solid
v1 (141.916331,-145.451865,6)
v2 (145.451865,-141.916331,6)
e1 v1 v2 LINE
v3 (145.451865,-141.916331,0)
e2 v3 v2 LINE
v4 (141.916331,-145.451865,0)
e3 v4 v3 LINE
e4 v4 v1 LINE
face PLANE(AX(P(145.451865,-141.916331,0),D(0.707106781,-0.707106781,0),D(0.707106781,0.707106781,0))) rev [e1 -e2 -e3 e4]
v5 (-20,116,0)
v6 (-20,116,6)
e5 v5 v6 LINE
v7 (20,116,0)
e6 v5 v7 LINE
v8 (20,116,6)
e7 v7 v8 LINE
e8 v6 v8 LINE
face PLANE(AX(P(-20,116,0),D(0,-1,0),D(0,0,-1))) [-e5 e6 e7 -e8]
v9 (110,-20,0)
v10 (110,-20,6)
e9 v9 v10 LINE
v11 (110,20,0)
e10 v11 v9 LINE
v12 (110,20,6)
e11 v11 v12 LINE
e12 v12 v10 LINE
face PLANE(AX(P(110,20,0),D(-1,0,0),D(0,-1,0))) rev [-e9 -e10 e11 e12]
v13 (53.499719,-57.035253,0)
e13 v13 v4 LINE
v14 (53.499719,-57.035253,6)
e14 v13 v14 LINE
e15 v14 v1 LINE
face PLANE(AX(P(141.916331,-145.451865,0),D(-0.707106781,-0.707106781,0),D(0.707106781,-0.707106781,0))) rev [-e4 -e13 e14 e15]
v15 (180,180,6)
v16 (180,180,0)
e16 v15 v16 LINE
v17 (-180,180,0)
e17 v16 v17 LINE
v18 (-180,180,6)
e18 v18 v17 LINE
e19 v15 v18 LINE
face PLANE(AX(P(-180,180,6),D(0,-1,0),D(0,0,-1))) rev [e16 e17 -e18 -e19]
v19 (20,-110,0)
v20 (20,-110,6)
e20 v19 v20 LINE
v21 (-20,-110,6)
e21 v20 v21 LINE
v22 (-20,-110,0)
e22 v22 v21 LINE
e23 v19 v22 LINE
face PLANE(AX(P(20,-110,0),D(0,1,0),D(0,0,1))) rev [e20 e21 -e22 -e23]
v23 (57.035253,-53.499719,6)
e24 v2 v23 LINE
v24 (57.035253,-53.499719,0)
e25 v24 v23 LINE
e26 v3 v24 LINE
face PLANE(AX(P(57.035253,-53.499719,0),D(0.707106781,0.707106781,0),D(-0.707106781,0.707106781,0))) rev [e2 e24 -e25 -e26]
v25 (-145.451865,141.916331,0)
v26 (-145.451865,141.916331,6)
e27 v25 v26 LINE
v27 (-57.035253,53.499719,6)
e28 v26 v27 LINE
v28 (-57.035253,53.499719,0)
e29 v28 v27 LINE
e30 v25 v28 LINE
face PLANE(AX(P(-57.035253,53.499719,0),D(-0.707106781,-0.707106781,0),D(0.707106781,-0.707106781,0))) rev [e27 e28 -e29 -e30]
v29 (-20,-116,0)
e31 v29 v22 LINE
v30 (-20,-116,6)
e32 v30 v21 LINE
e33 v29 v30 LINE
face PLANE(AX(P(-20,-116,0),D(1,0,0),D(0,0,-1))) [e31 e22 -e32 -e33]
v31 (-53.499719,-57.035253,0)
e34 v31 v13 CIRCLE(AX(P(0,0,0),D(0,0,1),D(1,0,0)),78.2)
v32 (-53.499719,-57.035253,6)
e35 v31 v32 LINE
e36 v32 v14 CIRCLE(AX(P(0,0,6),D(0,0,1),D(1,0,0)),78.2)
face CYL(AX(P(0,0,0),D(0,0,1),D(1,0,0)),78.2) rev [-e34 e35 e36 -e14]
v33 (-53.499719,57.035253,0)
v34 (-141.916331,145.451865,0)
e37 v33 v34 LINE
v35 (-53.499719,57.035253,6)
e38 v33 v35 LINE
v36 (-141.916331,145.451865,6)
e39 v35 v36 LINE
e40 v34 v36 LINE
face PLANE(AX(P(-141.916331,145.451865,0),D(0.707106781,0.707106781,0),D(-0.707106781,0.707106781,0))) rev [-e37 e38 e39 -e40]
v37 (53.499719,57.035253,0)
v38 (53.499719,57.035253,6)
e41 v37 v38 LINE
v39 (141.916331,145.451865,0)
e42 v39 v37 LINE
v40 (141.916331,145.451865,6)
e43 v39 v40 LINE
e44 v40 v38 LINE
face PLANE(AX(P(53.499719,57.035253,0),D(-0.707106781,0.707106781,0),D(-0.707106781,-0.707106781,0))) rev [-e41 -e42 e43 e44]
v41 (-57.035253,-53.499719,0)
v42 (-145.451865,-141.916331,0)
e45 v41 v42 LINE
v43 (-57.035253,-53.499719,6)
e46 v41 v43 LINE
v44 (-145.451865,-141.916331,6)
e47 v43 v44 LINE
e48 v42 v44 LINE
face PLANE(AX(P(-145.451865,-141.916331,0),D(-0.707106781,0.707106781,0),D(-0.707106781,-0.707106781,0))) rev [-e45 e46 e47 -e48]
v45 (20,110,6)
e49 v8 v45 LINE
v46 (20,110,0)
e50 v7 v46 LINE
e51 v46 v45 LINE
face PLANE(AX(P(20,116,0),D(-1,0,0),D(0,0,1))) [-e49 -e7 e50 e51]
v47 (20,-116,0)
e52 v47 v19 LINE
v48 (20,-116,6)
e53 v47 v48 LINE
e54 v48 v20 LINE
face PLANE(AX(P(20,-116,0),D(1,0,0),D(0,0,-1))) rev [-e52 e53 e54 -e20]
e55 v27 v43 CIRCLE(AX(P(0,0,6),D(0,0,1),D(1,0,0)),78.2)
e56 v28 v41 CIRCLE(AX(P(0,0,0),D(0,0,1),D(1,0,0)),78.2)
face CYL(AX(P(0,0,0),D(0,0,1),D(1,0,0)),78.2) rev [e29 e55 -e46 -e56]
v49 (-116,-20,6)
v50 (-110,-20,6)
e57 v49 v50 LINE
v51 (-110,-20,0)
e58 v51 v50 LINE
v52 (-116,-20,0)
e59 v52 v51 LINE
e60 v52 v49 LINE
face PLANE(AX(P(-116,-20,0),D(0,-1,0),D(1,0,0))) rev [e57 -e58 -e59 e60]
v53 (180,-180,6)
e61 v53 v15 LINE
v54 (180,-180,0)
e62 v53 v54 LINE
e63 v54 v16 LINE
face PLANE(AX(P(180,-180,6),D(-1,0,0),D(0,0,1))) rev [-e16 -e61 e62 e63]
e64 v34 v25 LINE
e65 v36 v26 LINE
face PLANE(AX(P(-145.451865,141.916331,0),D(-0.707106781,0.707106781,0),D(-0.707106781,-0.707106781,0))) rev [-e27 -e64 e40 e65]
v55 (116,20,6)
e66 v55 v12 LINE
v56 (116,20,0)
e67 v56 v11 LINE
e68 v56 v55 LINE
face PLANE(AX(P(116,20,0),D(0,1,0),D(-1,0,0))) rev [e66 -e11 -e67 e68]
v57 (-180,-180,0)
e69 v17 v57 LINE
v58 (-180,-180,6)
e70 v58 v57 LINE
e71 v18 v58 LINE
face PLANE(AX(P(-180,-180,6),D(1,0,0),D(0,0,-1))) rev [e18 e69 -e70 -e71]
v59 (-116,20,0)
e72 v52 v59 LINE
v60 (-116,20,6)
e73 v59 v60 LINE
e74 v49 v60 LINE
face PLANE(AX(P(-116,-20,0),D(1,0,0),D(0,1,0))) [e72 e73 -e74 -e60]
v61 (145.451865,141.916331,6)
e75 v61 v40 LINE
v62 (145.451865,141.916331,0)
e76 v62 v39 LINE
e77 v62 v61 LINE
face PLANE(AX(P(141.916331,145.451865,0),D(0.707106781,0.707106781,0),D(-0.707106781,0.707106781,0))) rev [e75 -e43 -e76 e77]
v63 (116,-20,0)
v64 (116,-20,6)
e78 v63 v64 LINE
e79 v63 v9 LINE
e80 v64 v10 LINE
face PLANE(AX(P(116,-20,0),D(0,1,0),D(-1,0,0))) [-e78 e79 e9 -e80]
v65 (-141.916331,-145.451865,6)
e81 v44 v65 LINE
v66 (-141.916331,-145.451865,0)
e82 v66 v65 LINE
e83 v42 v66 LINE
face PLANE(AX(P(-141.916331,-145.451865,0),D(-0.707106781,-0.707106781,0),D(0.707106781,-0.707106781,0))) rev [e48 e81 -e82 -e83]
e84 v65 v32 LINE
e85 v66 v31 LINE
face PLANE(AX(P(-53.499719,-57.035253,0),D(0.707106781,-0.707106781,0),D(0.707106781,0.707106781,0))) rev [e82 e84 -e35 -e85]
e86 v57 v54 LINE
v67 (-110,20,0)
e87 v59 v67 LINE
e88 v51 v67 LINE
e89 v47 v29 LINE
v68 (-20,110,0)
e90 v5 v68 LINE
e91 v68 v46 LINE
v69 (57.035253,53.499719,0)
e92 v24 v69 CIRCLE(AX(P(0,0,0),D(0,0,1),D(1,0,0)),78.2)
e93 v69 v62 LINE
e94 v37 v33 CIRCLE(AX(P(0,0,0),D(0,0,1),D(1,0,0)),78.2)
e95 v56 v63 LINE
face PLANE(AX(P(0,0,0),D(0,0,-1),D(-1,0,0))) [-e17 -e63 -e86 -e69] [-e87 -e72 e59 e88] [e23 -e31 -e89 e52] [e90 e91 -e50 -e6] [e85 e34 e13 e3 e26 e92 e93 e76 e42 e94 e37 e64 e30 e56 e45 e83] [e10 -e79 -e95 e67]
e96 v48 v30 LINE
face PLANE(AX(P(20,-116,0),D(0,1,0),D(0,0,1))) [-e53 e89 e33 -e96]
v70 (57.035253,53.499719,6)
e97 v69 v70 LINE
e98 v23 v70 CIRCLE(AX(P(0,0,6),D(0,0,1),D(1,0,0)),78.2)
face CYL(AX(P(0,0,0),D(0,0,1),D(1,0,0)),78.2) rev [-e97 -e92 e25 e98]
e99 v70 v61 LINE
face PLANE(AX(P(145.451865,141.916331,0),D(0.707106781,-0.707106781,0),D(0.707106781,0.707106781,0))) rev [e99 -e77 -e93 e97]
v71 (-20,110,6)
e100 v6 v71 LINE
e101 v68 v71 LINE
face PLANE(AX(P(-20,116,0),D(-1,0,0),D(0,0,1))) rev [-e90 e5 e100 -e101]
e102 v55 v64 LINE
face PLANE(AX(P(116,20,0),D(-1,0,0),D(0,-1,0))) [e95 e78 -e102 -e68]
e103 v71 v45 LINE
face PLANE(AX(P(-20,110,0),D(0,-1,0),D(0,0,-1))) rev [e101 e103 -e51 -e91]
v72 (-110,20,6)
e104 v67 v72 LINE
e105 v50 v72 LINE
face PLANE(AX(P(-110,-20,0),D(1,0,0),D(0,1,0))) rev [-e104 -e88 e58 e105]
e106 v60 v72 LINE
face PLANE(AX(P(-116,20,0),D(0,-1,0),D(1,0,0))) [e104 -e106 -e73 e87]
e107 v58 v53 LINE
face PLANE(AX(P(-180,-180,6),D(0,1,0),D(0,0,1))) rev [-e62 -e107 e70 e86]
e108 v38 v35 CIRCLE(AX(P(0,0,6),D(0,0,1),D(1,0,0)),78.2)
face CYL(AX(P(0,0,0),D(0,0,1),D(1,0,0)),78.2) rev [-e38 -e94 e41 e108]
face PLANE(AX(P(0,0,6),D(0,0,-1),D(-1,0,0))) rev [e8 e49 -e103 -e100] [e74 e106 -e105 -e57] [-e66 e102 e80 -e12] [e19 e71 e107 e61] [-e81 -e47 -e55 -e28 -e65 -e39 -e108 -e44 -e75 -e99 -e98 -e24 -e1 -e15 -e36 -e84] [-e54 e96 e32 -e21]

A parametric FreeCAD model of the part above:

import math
import FreeCAD as App
import Part
import Sketcher

V = App.Vector
Q = App.Units.Quantity

doc = App.newDocument("Part")
body = doc.addObject("PartDesign::Body", "Body")

sketch1 = body.newObject("Sketcher::SketchObject", "Sketch")
sketch1.AttachmentSupport = (doc.getObject("XY_Plane"), [""])
sketch1.MapMode = "FlatFace"
sketch1.addGeometry([
    Part.LineSegment(V(-180, 180, 0), V(-180, -180, 0)),
    Part.LineSegment(V(-180, -180, 0), V(180, -180, 0)),
    Part.LineSegment(V(180, -180, 0), V(180, 180, 0)),
    Part.LineSegment(V(180, 180, 0), V(-180, 180, 0)),
], False)
sketch1.addConstraint([
    Sketcher.Constraint("Coincident", 0, 2, 1, 1),
    Sketcher.Constraint("Coincident", 1, 2, 2, 1),
    Sketcher.Constraint("Coincident", 2, 2, 3, 1),
    Sketcher.Constraint("Coincident", 3, 2, 0, 1),
    Sketcher.Constraint("Vertical", 0),
    Sketcher.Constraint("Horizontal", 1),
    Sketcher.Constraint("Vertical", 2),
    Sketcher.Constraint("Horizontal", 3),
    Sketcher.Constraint("Symmetric", 0, 2, 2, 2, -1, 1),
    Sketcher.Constraint("Equal", 3, 0),
    Sketcher.Constraint("DistanceX", 1, 1, 1, 2, 360.0),
])
pad1 = body.newObject("PartDesign::Pad", "Pad")
pad1.Profile = sketch1
pad1.Length = 6

sketch2 = body.newObject("Sketcher::SketchObject", "Sketch001")
sketch2.AttachmentSupport = (doc.getObject("XY_Plane"), [""])
sketch2.MapMode = "FlatFace"
sketch2.AttachmentOffset = App.Placement(V(0, 0, 6), App.Rotation())
sketch2.addGeometry(Part.Circle(V(0, 0, 0), V(0, 0, 1), 78), False)
sketch2.addConstraint([
    Sketcher.Constraint("Coincident", 0, 3, -1, 1),
    Sketcher.Constraint("Diameter", 0, 156.4),
])
pocket1 = body.newObject("PartDesign::Pocket", "Pocket")
pocket1.Profile = sketch2
pocket1.Type = "ThroughAll"

sketch3 = body.newObject("Sketcher::SketchObject", "Sketch002")
sketch3.AttachmentSupport = (doc.getObject("XY_Plane"), [""])
sketch3.MapMode = "FlatFace"
sketch3.AttachmentOffset = App.Placement(V(0, 0, 6), App.Rotation())
sketch3.addGeometry([
    Part.LineSegment(V(-145, 142, 0), V(-57, 53, 0)),
    Part.ArcOfCircle(Part.Circle(V(0, 0, 0), V(0, 0, 1), 78), math.radians(133.17), math.radians(136.83)),
    Part.LineSegment(V(-53, 57, 0), V(-142, 145, 0)),
    Part.LineSegment(V(-142, 145, 0), V(-145, 142, 0)),
], False)
sketch3.addConstraint([
    Sketcher.Constraint("Coincident", 0, 2, 1, 2),
    Sketcher.Constraint("Coincident", 1, 1, 2, 1),
    Sketcher.Constraint("Coincident", 2, 2, 3, 1),
    Sketcher.Constraint("Coincident", 3, 2, 0, 1),
    Sketcher.Constraint("Coincident", 1, 3, -1, 1),
    Sketcher.Constraint("Parallel", 0, 2),
    Sketcher.Constraint("Perpendicular", 2, 3),
    Sketcher.Constraint("Equal", 0, 2),
    Sketcher.Constraint("Radius", 1, 78.2),
    Sketcher.Constraint("Angle", 0, Q("-45 deg")),
    Sketcher.Constraint("Distance", 3, 5.0),
    Sketcher.Constraint("Distance", 0, 125.039972),
])
pocket2 = body.newObject("PartDesign::Pocket", "Pocket001")
pocket2.Profile = sketch3
pocket2.Type = "ThroughAll"
doc.recompute()

polarpattern = body.newObject("PartDesign::PolarPattern", "PolarPattern")
polarpattern.Originals = [pocket2]
polarpattern.Axis = (doc.getObject("Z_Axis"), [""])
polarpattern.Angle = 360
polarpattern.Occurrences = 4
body.Tip = polarpattern

sketch4 = body.newObject("Sketcher::SketchObject", "Sketch003")
sketch4.AttachmentSupport = (doc.getObject("XY_Plane"), [""])
sketch4.MapMode = "FlatFace"
sketch4.AttachmentOffset = App.Placement(V(0, 0, 6), App.Rotation())
sketch4.addGeometry([
    Part.LineSegment(V(-20, 116, 0), V(-20, 110, 0)),
    Part.LineSegment(V(-20, 110, 0), V(20, 110, 0)),
    Part.LineSegment(V(20, 110, 0), V(20, 116, 0)),
    Part.LineSegment(V(20, 116, 0), V(-20, 116, 0)),
], False)
sketch4.addConstraint([
    Sketcher.Constraint("Coincident", 0, 2, 1, 1),
    Sketcher.Constraint("Coincident", 1, 2, 2, 1),
    Sketcher.Constraint("Coincident", 2, 2, 3, 1),
    Sketcher.Constraint("Coincident", 3, 2, 0, 1),
    Sketcher.Constraint("Vertical", 0),
    Sketcher.Constraint("Horizontal", 1),
    Sketcher.Constraint("Vertical", 2),
    Sketcher.Constraint("Horizontal", 3),
    Sketcher.Constraint("DistanceX", 1, 1, 1, 2, 40.0),
    Sketcher.Constraint("DistanceY", 0, 2, 0, 1, 6.0),
    Sketcher.Constraint("DistanceX", 0, 2, -1, 1, 20.0),
    Sketcher.Constraint("DistanceY", -1, 1, 0, 2, 110.0),
])
pocket3 = body.newObject("PartDesign::Pocket", "Pocket002")
pocket3.Profile = sketch4
pocket3.Type = "ThroughAll"
doc.recompute()

polarpattern2 = body.newObject("PartDesign::PolarPattern", "PolarPattern001")
polarpattern2.Originals = [pocket3]
polarpattern2.Axis = (doc.getObject("Z_Axis"), [""])
polarpattern2.Angle = 360
polarpattern2.Occurrences = 4
body.Tip = polarpattern2

doc.recompute()
